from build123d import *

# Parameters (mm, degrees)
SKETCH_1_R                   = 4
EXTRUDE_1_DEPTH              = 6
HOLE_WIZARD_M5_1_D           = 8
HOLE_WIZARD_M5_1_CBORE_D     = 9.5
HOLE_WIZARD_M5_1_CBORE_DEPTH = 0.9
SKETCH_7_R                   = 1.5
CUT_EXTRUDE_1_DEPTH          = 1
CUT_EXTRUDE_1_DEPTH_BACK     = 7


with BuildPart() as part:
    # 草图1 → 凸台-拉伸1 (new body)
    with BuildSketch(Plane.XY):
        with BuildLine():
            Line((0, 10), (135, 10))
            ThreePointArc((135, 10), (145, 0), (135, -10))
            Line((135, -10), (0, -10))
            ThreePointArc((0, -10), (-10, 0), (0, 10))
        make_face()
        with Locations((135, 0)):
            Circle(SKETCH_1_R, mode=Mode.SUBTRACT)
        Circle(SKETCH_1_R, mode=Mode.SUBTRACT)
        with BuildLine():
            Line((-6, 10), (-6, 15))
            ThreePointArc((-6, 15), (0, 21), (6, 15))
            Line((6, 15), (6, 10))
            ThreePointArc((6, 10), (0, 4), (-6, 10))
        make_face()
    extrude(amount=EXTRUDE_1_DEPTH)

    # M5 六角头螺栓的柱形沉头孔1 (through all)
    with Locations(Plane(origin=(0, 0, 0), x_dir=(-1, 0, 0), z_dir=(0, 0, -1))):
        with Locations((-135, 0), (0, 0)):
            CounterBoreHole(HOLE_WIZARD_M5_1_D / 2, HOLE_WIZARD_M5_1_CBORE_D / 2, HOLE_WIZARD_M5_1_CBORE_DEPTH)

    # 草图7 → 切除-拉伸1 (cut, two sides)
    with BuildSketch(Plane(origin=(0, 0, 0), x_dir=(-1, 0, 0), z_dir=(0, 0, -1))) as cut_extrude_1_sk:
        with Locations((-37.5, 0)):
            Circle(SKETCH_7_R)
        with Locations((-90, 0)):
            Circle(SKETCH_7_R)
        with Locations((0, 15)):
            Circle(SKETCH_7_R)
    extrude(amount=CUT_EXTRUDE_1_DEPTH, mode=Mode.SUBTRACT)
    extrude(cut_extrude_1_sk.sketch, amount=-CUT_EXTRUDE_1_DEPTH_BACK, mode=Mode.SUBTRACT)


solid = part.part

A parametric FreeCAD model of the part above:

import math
import FreeCAD as App
import Part
import Sketcher
from FreeCAD import Vector
Q = App.Units.Quantity

doc = App.newDocument("Part")
params = doc.addObject("Spreadsheet::Sheet", "Params")
for row, (alias, value) in enumerate([
    ("sketch1_diameter", "8 mm"),
    ("sketch1_radius", "6 mm"),
    ("sketch1_radius2", "10 mm"),
    ("sketch1_width", "135 mm"),
    ("sketch1_height", "5 mm"),
    ("pad1_length", "6 mm"),
    ("sketch2_diameter", "8 mm"),
    ("hole_diameter", "8 mm"),
    ("hole_cbore_diameter", "9.5 mm"),
    ("hole_cbore_depth", "0.9 mm"),
    ("sketch3_diameter", "3 mm"),
], start=1):
    params.set(f"A{row}", alias)
    params.set(f"B{row}", "=" + value)
    params.setAlias(f"B{row}", alias)

body = doc.addObject("PartDesign::Body", "Body")

# Sketch on XY plane
sketch1 = body.newObject("Sketcher::SketchObject", "Sketch")
sketch1.AttachmentSupport = (doc.getObject("XY_Plane"), [""])
sketch1.MapMode = "FlatFace"
sketch1.addGeometry([
    Part.ArcOfCircle(Part.Circle(Vector(0, 10, 0), Vector(0, 0, 1), 6), math.radians(180), math.radians(197.46)),  # 0
    Part.ArcOfCircle(Part.Circle(Vector(0, 0, 0), Vector(0, 0, 1), 10), math.radians(125), math.radians(270)),  # 1
    Part.LineSegment(Vector(0, -10, 0), Vector(135, -10, 0)),  # 2
    Part.ArcOfCircle(Part.Circle(Vector(135, 0, 0), Vector(0, 0, 1), 10), math.radians(-90), math.radians(90)),  # 3
    Part.LineSegment(Vector(135, 10, 0), Vector(6, 10, 0)),  # 4
    Part.LineSegment(Vector(6, 10, 0), Vector(6, 15, 0)),  # 5
    Part.ArcOfCircle(Part.Circle(Vector(0, 15, 0), Vector(0, 0, 1), 6), math.radians(0), math.radians(180)),  # 6
    Part.LineSegment(Vector(-6, 15, 0), Vector(-6, 10, 0)),  # 7
    Part.Circle(Vector(0, 0, 0), Vector(0, 0, 1), 4),  # 8
    Part.Circle(Vector(135, 0, 0), Vector(0, 0, 1), 4),  # 9
], False)
sketch1.addConstraint([
    Sketcher.Constraint("Coincident", 0, 2, 1, 1),
    Sketcher.Constraint("Tangent", 1, 2, 2, 1),
    Sketcher.Constraint("Tangent", 2, 2, 3, 1),
    Sketcher.Constraint("Tangent", 3, 2, 4, 1),
    Sketcher.Constraint("Coincident", 4, 2, 5, 1),
    Sketcher.Constraint("Tangent", 5, 2, 6, 1),
    Sketcher.Constraint("Tangent", 6, 2, 7, 1),
    Sketcher.Constraint("Tangent", 7, 2, 0, 1),
    Sketcher.Constraint("Horizontal", 2),
    Sketcher.Constraint("Horizontal", 4),
    Sketcher.Constraint("Vertical", 5),
    Sketcher.Constraint("Vertical", 7),
    Sketcher.Constraint("Coincident", 1, 3, -1, 1),
    Sketcher.Constraint("Coincident", 8, 3, -1, 1),
    Sketcher.Constraint("Coincident", 9, 3, 3, 3),
    Sketcher.Constraint("Equal", 1, 3),
    Sketcher.Constraint("Equal", 0, 6),
    Sketcher.Constraint("Equal", 8, 9),
    Sketcher.Constraint("Symmetric", 4, 2, 7, 2, -2),
    Sketcher.Constraint("Diameter", 8, Q("8 mm")),
    Sketcher.Constraint("Radius", 0, Q("6 mm")),
    Sketcher.Constraint("Radius", 1, Q("10 mm")),
    Sketcher.Constraint("DistanceX", 2, 1, 2, 2, Q("135 mm")),
    Sketcher.Constraint("DistanceY", 5, 1, 5, 2, Q("5 mm")),
])
sketch1.setExpression("Constraints[19]", "Params.sketch1_diameter")
sketch1.setExpression("Constraints[20]", "Params.sketch1_radius")
sketch1.setExpression("Constraints[21]", "Params.sketch1_radius2")
sketch1.setExpression("Constraints[22]", "Params.sketch1_width")
sketch1.setExpression("Constraints[23]", "Params.sketch1_height")
pad1 = body.newObject("PartDesign::Pad", "Pad")
pad1.Profile = sketch1
pad1.setExpression("Length", "Params.pad1_length")

# Sketch on XY plane
sketch2 = body.newObject("Sketcher::SketchObject", "Sketch001")
sketch2.AttachmentSupport = (doc.getObject("XY_Plane"), [""])
sketch2.MapMode = "FlatFace"
sketch2.addGeometry([
    Part.Circle(Vector(135, 0, 0), Vector(0, 0, 1), 4),
    Part.Circle(Vector(0, 0, 0), Vector(0, 0, 1), 4),
], False)
sketch2.addConstraint([
    Sketcher.Constraint("Coincident", 1, 3, -1, 1),
    Sketcher.Constraint("Equal", 0, 1),
    Sketcher.Constraint("PointOnObject", 0, 3, -1),
    Sketcher.Constraint("Diameter", 0, Q("8 mm")),
    Sketcher.Constraint("DistanceX", -1, 1, 0, 3, Q("135 mm")),
])
sketch2.setExpression("Constraints[3]", "Params.sketch2_diameter")
doc.recompute()
hole = body.newObject("PartDesign::Hole", "Hole")
hole.Profile = sketch2
hole.ThreadType = "None"
hole.setExpression("Diameter", "Params.hole_diameter")
hole.DepthType = "ThroughAll"
hole.HoleCutType = "Counterbore"
hole.setExpression("HoleCutDiameter", "Params.hole_cbore_diameter")
hole.setExpression("HoleCutDepth", "Params.hole_cbore_depth")
hole.Reversed = True

# Sketch on XY plane
sketch3 = body.newObject("Sketcher::SketchObject", "Sketch002")
sketch3.AttachmentSupport = (doc.getObject("XY_Plane"), [""])
sketch3.MapMode = "FlatFace"
sketch3.addGeometry([
    Part.Circle(Vector(37.5, 0, 0), Vector(0, 0, 1), 1.5),
    Part.Circle(Vector(90, 0, 0), Vector(0, 0, 1), 1.5),
    Part.Circle(Vector(0, 15, 0), Vector(0, 0, 1), 1.5),
], False)
sketch3.addConstraint([
    Sketcher.Constraint("Equal", 0, 1),
    Sketcher.Constraint("Equal", 1, 2),
    Sketcher.Constraint("PointOnObject", 0, 3, -1),
    Sketcher.Constraint("PointOnObject", 1, 3, -1),
    Sketcher.Constraint("PointOnObject", 2, 3, -2),
    Sketcher.Constraint("Diameter", 0, Q("3 mm")),
    Sketcher.Constraint("DistanceX", -1, 1, 1, 3, Q("90 mm")),
    Sketcher.Constraint("DistanceY", -1, 1, 2, 3, Q("15 mm")),
    Sketcher.Constraint("DistanceX", -1, 1, 0, 3, Q("37.5 mm")),
])
sketch3.setExpression("Constraints[5]", "Params.sketch3_diameter")
pocket1 = body.newObject("PartDesign::Pocket", "Pocket")
pocket1.Profile = sketch3
pocket1.Type = "ThroughAll"
pocket1.Midplane = True

doc.recompute()
